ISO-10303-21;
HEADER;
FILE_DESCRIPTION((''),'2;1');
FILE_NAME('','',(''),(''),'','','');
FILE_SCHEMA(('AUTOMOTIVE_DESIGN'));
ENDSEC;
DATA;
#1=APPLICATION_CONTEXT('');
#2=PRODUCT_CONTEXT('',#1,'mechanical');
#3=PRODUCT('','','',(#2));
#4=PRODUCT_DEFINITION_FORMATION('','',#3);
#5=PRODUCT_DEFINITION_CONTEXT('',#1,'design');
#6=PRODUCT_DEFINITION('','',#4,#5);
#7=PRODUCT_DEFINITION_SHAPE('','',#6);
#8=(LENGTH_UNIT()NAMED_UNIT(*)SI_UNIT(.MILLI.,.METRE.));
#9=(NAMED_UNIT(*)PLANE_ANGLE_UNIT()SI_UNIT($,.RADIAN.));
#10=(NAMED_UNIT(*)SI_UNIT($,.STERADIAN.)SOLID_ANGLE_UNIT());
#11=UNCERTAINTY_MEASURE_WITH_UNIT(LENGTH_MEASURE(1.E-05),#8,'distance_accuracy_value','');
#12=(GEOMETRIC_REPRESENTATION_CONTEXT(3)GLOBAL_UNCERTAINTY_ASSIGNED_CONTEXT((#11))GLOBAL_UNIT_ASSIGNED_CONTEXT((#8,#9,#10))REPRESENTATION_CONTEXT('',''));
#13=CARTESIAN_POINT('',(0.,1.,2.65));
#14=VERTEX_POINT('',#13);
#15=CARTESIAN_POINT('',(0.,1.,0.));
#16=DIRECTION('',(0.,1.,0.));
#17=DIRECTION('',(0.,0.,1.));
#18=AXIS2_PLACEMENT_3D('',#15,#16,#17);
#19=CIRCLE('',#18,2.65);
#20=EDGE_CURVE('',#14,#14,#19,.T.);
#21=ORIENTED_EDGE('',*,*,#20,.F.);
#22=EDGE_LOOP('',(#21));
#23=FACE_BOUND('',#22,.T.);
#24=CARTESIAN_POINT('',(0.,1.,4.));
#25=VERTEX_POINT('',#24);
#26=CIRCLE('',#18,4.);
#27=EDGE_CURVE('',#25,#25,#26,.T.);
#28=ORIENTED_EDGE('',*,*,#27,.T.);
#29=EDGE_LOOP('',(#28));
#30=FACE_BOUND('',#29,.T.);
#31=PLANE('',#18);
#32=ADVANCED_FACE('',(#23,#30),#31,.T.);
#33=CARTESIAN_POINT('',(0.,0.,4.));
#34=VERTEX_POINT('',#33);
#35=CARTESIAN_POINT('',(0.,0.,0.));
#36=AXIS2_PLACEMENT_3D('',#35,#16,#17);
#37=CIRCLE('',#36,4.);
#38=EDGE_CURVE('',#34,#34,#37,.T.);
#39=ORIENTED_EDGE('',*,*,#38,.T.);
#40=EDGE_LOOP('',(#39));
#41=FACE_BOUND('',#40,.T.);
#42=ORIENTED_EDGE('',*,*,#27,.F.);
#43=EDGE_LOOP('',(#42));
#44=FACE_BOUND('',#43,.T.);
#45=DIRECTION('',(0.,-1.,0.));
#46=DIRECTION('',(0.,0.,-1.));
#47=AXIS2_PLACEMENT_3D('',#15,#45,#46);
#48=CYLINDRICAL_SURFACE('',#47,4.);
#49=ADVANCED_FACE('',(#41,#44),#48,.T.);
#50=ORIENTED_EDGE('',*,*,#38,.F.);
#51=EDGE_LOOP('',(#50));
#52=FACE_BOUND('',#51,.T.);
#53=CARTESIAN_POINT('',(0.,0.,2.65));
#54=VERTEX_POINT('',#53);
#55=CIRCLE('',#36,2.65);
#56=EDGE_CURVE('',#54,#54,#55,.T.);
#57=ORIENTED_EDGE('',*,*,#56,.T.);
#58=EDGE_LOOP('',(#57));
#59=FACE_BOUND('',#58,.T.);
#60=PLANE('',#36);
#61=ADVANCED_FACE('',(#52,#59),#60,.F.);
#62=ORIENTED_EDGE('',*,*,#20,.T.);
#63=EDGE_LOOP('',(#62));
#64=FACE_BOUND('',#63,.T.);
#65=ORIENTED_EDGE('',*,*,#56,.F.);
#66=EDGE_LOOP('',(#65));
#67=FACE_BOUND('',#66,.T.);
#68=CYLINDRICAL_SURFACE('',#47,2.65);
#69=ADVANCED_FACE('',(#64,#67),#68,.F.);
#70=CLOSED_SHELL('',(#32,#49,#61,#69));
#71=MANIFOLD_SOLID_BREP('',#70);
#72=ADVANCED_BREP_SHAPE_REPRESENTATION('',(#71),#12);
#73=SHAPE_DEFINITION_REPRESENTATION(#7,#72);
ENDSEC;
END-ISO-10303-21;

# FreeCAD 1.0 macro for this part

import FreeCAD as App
import Part
import Sketcher

V = App.Vector

doc = App.newDocument("Part")
body = doc.addObject("PartDesign::Body", "Body")

sketch1 = doc.addObject("Sketcher::SketchObject", "Sketch")
body.addObject(sketch1)
sketch1.AttachmentSupport = (doc.XZ_Plane, [""])
sketch1.MapMode = "FlatFace"
sketch1.addGeometry([
    Part.Circle(V(0, 0, 0), V(0, 0, 1), 4),
    Part.Circle(V(0, 0, 0), V(0, 0, 1), 2.6),
], False)
sketch1.addConstraint([
    Sketcher.Constraint("Coincident", 0, 3, -1, 1),
    Sketcher.Constraint("Coincident", 1, 3, -1, 1),
    Sketcher.Constraint("Diameter", 0, 8.0),
    Sketcher.Constraint("Diameter", 1, 5.3),
])
pad1 = doc.addObject("PartDesign::Pad", "Pad")
body.addObject(pad1)
pad1.Profile = sketch1
pad1.Length = 1
pad1.Reversed = True

doc.recompute()
